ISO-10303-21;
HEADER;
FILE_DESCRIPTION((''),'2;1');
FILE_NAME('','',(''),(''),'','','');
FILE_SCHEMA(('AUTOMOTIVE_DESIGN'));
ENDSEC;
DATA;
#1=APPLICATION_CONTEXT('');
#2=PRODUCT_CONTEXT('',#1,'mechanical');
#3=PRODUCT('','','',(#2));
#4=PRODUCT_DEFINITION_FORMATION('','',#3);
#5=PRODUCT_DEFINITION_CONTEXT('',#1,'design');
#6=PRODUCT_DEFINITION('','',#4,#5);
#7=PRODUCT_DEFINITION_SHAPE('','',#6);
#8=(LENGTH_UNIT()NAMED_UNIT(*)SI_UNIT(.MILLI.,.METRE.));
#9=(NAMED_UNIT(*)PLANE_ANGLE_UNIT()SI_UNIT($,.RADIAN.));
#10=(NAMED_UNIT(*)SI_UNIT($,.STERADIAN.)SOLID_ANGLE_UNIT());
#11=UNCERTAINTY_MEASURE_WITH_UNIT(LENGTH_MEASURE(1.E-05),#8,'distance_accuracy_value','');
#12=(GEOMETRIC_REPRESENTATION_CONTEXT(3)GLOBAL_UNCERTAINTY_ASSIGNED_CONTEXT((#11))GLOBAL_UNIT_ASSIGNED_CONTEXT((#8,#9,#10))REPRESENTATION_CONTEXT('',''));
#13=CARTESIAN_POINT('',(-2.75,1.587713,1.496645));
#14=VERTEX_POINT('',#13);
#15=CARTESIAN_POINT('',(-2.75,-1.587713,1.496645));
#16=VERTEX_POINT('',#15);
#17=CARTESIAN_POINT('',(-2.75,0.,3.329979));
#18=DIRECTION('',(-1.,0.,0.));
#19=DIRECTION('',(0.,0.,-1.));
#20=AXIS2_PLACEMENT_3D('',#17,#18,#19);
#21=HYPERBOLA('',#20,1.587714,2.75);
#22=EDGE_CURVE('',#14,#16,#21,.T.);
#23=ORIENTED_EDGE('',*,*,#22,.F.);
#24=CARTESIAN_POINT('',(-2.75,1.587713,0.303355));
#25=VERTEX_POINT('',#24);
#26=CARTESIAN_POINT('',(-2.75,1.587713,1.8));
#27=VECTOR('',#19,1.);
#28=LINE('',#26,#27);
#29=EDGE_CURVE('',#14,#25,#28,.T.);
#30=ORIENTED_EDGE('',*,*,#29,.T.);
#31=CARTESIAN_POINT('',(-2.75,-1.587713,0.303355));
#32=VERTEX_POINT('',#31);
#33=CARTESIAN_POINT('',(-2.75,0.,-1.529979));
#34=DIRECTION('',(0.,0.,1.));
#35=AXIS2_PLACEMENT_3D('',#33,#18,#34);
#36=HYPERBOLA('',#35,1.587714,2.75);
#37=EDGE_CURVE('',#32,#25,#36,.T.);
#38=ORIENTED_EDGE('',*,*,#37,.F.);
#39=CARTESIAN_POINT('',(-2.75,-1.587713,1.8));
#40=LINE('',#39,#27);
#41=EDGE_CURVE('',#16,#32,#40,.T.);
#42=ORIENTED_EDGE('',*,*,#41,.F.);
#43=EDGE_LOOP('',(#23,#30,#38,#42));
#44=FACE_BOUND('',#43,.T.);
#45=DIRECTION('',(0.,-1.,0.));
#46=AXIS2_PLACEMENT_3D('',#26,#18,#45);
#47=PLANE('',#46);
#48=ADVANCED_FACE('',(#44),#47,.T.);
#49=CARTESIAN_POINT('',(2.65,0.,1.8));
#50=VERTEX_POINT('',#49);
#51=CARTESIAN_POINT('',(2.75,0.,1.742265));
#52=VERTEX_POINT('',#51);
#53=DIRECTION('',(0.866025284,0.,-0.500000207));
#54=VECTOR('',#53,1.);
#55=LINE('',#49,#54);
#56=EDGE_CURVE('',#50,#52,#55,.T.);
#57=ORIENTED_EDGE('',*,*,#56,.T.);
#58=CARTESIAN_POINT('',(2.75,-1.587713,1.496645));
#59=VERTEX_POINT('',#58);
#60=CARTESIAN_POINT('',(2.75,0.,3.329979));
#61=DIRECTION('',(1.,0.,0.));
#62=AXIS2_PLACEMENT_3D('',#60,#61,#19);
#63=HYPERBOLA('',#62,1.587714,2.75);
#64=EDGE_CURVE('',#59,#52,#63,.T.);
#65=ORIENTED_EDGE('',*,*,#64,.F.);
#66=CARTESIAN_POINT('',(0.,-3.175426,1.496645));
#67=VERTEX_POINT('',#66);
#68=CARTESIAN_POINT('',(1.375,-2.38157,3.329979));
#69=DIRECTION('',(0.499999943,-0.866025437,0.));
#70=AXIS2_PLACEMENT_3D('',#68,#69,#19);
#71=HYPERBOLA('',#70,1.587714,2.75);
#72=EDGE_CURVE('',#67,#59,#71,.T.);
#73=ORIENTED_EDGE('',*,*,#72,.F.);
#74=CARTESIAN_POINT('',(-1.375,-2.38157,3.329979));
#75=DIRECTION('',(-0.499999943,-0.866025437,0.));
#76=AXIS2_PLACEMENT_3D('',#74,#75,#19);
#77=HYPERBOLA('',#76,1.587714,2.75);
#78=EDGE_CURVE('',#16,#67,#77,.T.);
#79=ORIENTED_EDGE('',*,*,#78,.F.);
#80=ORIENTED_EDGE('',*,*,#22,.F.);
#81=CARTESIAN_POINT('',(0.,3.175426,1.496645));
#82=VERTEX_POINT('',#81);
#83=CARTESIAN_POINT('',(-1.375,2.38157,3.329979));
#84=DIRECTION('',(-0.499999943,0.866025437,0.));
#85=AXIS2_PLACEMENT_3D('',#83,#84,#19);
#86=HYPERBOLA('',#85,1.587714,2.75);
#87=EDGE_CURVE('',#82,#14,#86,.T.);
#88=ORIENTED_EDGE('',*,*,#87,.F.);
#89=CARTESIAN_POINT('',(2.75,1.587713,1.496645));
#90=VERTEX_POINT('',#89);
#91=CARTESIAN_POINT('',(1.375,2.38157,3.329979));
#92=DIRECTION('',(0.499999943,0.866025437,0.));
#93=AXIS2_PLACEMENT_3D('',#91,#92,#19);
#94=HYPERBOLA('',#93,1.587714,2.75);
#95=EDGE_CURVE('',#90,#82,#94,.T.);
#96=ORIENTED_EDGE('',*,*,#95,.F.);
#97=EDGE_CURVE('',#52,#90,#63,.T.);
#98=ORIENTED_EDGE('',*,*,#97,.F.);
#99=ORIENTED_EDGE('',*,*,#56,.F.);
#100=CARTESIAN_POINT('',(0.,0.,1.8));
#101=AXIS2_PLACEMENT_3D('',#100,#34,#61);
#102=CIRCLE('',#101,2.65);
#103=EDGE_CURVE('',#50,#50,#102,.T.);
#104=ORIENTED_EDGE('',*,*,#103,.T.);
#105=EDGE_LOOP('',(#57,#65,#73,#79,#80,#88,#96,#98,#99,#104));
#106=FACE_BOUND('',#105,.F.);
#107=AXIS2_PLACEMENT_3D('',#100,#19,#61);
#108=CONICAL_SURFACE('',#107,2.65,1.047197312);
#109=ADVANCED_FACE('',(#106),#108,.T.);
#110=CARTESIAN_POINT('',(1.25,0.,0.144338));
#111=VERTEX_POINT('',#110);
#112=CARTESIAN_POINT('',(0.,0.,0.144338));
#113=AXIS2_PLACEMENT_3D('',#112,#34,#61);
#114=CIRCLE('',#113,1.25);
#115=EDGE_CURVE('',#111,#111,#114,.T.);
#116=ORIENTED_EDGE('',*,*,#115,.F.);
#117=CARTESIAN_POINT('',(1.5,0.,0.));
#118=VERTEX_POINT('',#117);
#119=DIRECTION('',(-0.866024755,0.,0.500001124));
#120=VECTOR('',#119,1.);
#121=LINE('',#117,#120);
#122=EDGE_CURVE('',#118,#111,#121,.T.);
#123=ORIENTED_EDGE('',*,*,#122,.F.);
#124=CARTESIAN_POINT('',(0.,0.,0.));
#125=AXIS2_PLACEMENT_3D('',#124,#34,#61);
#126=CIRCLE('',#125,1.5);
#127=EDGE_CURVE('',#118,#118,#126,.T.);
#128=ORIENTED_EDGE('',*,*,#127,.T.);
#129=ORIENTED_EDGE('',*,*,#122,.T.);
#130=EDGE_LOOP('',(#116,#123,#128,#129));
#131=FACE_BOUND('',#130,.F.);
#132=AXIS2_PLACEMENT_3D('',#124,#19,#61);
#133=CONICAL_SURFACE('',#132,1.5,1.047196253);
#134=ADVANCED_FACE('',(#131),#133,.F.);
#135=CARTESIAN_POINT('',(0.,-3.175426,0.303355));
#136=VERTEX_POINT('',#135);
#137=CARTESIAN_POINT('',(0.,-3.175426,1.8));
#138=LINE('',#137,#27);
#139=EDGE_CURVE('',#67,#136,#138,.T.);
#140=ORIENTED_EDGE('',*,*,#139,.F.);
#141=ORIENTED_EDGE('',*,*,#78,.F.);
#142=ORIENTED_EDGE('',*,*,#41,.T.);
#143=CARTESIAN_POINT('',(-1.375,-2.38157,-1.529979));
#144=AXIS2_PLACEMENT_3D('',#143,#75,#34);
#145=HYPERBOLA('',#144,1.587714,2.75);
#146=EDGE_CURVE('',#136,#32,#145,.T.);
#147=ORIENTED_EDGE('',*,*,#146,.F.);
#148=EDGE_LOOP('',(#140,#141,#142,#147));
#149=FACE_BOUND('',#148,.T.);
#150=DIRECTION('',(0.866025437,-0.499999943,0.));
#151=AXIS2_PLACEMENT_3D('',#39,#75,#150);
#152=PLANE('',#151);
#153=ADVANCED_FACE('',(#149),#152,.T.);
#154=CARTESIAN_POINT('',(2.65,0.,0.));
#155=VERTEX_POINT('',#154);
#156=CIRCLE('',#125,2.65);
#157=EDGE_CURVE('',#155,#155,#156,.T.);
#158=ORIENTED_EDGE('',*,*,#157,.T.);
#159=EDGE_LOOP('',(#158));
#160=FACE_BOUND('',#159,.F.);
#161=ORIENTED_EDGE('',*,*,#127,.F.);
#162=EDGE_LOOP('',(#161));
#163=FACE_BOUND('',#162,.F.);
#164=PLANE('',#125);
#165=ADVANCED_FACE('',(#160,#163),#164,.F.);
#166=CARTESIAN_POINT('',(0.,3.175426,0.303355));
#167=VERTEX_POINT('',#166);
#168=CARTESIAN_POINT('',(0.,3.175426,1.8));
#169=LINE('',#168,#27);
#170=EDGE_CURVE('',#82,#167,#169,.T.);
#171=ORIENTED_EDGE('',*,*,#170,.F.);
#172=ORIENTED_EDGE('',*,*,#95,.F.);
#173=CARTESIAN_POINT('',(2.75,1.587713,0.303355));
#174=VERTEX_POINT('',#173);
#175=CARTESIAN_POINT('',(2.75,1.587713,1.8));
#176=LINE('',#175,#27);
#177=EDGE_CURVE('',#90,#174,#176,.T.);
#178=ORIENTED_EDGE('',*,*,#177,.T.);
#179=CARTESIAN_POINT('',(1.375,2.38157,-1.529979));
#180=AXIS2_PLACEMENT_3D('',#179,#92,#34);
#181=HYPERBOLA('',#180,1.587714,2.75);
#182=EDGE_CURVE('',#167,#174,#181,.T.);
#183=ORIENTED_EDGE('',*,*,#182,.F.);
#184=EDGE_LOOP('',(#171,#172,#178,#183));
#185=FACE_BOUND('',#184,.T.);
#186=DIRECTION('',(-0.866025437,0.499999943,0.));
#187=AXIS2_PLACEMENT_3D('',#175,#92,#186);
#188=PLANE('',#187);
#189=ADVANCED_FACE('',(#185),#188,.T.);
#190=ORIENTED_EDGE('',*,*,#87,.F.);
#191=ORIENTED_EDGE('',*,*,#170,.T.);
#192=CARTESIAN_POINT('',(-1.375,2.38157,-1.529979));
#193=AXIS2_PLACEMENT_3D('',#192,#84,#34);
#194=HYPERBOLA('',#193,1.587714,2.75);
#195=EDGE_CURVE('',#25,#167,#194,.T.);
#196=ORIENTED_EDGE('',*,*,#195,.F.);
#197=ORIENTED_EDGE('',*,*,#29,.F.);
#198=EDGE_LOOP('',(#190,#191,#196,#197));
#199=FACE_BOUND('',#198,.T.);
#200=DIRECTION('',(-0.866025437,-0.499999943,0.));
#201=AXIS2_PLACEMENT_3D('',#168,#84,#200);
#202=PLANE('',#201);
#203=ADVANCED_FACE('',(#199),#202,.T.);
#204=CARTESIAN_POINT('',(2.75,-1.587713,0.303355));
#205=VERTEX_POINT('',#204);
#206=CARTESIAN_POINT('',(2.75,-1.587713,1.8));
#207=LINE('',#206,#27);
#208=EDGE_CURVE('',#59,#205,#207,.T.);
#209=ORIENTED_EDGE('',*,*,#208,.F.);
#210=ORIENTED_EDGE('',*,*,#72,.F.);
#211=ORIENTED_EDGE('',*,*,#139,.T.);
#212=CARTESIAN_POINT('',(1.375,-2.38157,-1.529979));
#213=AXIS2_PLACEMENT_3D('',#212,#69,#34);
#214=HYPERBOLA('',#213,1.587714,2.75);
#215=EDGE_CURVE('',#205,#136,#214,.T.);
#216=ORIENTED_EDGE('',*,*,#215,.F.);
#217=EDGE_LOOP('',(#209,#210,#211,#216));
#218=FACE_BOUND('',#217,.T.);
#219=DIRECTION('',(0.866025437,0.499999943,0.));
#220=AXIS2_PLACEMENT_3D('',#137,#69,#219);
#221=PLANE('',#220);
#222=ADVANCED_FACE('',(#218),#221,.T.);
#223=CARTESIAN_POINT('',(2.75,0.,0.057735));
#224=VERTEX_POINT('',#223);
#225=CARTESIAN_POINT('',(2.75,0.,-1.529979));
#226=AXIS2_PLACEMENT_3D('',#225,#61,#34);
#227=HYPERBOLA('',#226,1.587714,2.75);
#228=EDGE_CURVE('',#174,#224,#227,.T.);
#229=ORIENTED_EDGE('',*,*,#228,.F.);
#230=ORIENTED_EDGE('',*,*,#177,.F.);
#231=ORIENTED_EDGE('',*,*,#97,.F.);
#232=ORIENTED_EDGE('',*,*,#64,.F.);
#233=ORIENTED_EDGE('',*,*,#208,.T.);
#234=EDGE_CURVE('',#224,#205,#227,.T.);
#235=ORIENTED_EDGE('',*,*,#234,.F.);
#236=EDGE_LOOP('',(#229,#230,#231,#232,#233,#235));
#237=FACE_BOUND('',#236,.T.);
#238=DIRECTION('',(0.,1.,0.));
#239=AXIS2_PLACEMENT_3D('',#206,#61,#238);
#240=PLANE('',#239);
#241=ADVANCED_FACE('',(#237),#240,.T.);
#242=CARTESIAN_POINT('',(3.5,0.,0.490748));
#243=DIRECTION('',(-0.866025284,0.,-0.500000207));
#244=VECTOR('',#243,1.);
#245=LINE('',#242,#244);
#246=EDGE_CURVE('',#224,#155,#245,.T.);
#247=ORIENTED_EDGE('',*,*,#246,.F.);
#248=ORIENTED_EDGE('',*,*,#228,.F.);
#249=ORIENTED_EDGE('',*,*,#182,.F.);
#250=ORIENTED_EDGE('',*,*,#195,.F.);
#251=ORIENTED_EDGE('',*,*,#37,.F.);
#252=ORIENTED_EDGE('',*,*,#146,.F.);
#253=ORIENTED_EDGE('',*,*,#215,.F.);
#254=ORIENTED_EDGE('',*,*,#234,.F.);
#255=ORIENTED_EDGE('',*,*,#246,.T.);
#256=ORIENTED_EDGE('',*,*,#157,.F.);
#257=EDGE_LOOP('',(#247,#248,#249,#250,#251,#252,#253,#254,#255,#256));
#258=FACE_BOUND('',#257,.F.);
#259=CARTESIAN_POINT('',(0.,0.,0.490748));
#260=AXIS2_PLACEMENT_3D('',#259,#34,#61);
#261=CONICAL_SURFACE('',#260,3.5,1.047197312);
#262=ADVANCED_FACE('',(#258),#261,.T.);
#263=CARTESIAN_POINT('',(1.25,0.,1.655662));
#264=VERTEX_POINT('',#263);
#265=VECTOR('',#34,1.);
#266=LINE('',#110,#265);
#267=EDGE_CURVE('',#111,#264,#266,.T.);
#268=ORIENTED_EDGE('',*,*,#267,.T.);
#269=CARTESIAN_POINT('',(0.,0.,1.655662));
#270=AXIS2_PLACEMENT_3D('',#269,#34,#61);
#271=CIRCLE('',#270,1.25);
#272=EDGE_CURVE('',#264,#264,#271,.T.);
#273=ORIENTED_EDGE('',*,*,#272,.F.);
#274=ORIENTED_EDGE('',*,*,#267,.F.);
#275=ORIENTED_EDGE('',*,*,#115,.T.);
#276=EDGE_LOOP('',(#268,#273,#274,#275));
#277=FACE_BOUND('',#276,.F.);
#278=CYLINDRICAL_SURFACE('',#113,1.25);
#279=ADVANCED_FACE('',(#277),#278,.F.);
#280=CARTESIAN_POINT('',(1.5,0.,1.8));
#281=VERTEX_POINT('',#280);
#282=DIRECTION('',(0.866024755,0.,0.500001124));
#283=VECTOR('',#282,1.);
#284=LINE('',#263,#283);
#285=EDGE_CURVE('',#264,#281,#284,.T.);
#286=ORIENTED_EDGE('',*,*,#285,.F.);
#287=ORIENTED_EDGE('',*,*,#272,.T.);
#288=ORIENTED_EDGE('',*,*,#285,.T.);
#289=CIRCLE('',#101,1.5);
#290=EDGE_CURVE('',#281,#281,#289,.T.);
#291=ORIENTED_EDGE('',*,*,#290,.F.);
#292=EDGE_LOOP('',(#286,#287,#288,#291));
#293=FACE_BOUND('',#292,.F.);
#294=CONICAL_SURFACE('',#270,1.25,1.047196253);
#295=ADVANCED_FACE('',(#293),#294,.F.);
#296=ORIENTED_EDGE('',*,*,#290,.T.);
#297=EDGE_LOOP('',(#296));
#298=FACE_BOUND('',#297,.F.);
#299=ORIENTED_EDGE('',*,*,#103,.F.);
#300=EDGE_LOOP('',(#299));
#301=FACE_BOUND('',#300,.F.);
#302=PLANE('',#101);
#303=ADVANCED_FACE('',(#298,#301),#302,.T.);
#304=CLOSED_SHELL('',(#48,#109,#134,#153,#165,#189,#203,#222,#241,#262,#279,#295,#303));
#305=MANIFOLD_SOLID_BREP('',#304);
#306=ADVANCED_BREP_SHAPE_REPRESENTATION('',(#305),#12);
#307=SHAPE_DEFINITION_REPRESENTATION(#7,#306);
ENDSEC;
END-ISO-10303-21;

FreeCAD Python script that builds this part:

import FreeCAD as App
import Part
import Sketcher
Q = App.Units.Quantity


def add_polygon(sketch, points):
    """Adds a closed chain of lines whose ends are joined by coincident constraints."""
    first, n = sketch.GeometryCount, len(points)
    for a, b in zip(points, points[1:] + points[:1]):
        sketch.addGeometry(Part.LineSegment(App.Vector(*a, 0), App.Vector(*b, 0)), False)
    for i in range(n):
        sketch.addConstraint(Sketcher.Constraint("Coincident", first + i, 2, first + (i + 1) % n, 1))

doc = App.newDocument("Part")
body = doc.addObject("PartDesign::Body", "Body")

sketch1 = body.newObject("Sketcher::SketchObject", "Sketch")
sketch1.AttachmentSupport = (doc.getObject("XZ_Plane"), [""])
sketch1.MapMode = "FlatFace"
add_polygon(sketch1, [(1.25, 0.14), (1.5, 0), (2.65, 0), (3.5, 0.49), (3.5, 1.31), (2.65, 1.8), (1.5, 1.8), (1.25, 1.66)])
sketch1.addConstraint(Sketcher.Constraint("Horizontal", 1))
sketch1.addConstraint(Sketcher.Constraint("Vertical", 3))
sketch1.addConstraint(Sketcher.Constraint("Horizontal", 5))
sketch1.addConstraint(Sketcher.Constraint("Vertical", 7))
sketch1.addConstraint(Sketcher.Constraint("PointOnObject", 0, 2, -1))
sketch1.addConstraint(Sketcher.Constraint("Parallel", 0, 4))
sketch1.addConstraint(Sketcher.Constraint("Parallel", 2, 6))
sketch1.addConstraint(Sketcher.Constraint("Vertical", 1, 2, 4, 2))
sketch1.addConstraint(Sketcher.Constraint("Vertical", 0, 2, 5, 2))
sketch1.addConstraint(Sketcher.Constraint("Equal", 2, 4))
sketch1.addConstraint(Sketcher.Constraint("Angle", 2, Q("30.000014 deg")))
sketch1.addConstraint(Sketcher.Constraint("DistanceX", 0, 2, 2, 2, Q("2 mm")))
sketch1.addConstraint(Sketcher.Constraint("DistanceX", 1, 1, 1, 2, Q("1.15 mm")))
sketch1.addConstraint(Sketcher.Constraint("DistanceX", -1, 1, 0, 2, Q("1.5 mm")))
sketch1.addConstraint(Sketcher.Constraint("DistanceY", -1, 1, 4, 2, Q("1.8 mm")))
sketch1.addConstraint(Sketcher.Constraint("DistanceX", 6, 2, 4, 2, Q("1.4 mm")))
revolution = body.newObject("PartDesign::Revolution", "Revolution")
revolution.Profile = sketch1
revolution.ReferenceAxis = (sketch1, ["V_Axis"])
revolution.Angle = 360

sketch2 = body.newObject("Sketcher::SketchObject", "Sketch001")
sketch2.AttachmentSupport = (doc.getObject("XY_Plane"), [""])
sketch2.MapMode = "FlatFace"
sketch2.AttachmentOffset = App.Placement(App.Vector(0, 0, 1.8), App.Rotation())
sketch2.addGeometry(Part.Circle(App.Vector(0, 0, 0), App.Vector(0, 0, 1), 3.5), False)
add_polygon(sketch2, [(2.8, 1.6), (2.8, -1.6), (0, -3.2), (-2.8, -1.6), (-2.8, 1.6), (0, 3.2)])
sketch2.addConstraint(Sketcher.Constraint("Vertical", 1))
sketch2.addConstraint(Sketcher.Constraint("Vertical", 4))
sketch2.addConstraint(Sketcher.Constraint("Coincident", 0, 3, -1, 1))
sketch2.addConstraint(Sketcher.Constraint("Symmetric", 1, 2, 4, 2, -1, 1))
sketch2.addConstraint(Sketcher.Constraint("Symmetric", 2, 2, 5, 2, -1, 1))
sketch2.addConstraint(Sketcher.Constraint("PointOnObject", 2, 2, -2))
sketch2.addConstraint(Sketcher.Constraint("Parallel", 3, 6))
sketch2.addConstraint(Sketcher.Constraint("Horizontal", 1, 2, 3, 2))
sketch2.addConstraint(Sketcher.Constraint("Diameter", 0, Q("7 mm")))
sketch2.addConstraint(Sketcher.Constraint("Angle", 2, Q("-150.000004 deg")))
sketch2.addConstraint(Sketcher.Constraint("DistanceX", 3, 2, 1, 2, Q("5.5 mm")))
sketch2.addConstraint(Sketcher.Constraint("DistanceY", 1, 2, 1, 1, Q("3.175426 mm")))
pocket1 = body.newObject("PartDesign::Pocket", "Pocket")
pocket1.Profile = sketch2
pocket1.Length = 1.8

doc.recompute()
